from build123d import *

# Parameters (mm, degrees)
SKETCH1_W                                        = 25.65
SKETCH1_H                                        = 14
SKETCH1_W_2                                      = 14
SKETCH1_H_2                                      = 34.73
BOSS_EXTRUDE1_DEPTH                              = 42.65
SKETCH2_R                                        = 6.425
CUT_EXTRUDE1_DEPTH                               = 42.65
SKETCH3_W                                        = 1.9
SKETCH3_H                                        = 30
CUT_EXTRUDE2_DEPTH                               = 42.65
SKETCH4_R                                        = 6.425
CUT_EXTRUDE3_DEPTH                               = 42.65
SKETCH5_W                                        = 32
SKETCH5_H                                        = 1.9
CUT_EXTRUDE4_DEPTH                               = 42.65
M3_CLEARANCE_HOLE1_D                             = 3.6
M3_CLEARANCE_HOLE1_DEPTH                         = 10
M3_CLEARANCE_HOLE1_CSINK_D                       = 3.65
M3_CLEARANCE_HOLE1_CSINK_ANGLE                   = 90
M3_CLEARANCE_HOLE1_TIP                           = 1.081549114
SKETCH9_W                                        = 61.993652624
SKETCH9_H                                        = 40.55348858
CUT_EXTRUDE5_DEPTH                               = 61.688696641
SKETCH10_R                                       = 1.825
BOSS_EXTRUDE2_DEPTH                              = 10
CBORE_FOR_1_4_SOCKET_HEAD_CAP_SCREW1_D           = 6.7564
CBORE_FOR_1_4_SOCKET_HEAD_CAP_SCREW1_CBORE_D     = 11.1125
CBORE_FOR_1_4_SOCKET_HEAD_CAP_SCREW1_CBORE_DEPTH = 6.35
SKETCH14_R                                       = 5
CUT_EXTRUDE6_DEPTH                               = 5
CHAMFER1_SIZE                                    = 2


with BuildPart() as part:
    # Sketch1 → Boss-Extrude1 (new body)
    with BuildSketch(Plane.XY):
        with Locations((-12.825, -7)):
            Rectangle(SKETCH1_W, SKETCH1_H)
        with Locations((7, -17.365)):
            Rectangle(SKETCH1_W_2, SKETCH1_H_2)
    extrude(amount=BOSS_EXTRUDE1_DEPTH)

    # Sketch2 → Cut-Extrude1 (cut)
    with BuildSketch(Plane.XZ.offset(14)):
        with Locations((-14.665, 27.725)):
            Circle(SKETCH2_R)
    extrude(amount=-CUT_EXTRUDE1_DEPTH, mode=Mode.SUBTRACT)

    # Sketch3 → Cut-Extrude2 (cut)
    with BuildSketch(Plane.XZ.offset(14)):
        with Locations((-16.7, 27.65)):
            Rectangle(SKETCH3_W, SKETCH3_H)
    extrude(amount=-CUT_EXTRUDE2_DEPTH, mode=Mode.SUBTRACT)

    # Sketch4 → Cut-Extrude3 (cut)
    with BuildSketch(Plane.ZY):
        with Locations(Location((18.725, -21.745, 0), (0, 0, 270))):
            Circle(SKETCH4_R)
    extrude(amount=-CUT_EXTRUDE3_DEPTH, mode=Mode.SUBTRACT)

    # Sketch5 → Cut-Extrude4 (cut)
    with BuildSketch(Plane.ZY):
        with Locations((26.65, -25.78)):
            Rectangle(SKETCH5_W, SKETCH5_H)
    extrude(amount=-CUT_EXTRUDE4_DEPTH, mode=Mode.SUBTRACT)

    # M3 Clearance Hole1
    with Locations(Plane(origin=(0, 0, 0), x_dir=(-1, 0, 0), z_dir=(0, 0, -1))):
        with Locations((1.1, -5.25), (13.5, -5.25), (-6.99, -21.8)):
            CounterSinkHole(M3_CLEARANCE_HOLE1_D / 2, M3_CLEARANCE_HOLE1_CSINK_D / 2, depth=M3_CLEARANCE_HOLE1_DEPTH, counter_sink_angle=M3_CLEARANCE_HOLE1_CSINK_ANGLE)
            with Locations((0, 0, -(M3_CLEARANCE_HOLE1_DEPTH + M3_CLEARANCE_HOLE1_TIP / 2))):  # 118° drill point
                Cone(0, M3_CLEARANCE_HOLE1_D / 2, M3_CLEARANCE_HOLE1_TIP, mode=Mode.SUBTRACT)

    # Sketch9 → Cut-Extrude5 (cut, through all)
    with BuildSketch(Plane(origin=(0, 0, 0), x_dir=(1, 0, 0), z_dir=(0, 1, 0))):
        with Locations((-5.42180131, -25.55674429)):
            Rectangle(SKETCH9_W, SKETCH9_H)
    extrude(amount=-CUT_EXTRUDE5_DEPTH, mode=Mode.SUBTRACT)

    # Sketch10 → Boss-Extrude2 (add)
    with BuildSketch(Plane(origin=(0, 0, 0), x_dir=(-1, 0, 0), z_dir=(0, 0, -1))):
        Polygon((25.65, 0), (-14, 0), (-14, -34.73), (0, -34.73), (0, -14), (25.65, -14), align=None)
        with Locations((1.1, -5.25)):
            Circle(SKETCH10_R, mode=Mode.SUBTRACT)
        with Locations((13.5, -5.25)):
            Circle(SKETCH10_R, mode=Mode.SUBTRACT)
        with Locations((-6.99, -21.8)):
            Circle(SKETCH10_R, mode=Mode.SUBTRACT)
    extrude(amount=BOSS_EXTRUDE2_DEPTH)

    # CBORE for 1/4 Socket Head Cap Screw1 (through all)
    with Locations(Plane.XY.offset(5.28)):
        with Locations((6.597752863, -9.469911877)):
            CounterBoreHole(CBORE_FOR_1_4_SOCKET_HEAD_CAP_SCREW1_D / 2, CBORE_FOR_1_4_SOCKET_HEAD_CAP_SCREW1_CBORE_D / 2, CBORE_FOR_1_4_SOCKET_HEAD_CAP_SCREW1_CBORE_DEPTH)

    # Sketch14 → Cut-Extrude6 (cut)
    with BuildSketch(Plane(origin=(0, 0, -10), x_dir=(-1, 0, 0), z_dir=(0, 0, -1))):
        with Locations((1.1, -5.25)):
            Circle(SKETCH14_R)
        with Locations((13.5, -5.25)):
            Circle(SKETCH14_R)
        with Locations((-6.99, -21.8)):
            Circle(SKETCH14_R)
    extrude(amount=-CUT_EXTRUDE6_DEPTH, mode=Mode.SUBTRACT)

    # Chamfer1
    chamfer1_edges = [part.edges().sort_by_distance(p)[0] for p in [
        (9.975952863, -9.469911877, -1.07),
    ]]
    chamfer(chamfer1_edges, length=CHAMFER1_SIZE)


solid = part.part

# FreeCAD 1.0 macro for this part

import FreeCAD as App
import Part
import Sketcher

V = App.Vector
Q = App.Units.Quantity


def edges_at(feature, points):
    """Names of the edges that pass closest to the given points."""
    edges = feature.Shape.Edges
    near = lambda p: min(range(len(edges)), key=lambda i: edges[i].distToShape(Part.Vertex(*p))[0])
    return sorted({f"Edge{near(p) + 1}" for p in points})


def add_polygon(sketch, points):
    """Adds a closed chain of lines whose ends are joined by coincident constraints."""
    first, n = sketch.GeometryCount, len(points)
    for a, b in zip(points, points[1:] + points[:1]):
        sketch.addGeometry(Part.LineSegment(App.Vector(*a, 0), App.Vector(*b, 0)), False)
    for i in range(n):
        sketch.addConstraint(Sketcher.Constraint("Coincident", first + i, 2, first + (i + 1) % n, 1))

doc = App.newDocument("Part")
body = doc.addObject("PartDesign::Body", "Body")

# Sketch on XY plane
sketch1 = doc.addObject("Sketcher::SketchObject", "Sketch")
body.addObject(sketch1)
sketch1.AttachmentSupport = (doc.XY_Plane, [""])
sketch1.MapMode = "FlatFace"
add_polygon(sketch1, [(-25.65, 0), (-25.65, -14), (0, -14), (0, -34.73), (14, -34.73), (14, 0)])  # lines 0-5
sketch1.addConstraint(Sketcher.Constraint("Vertical", 0))
sketch1.addConstraint(Sketcher.Constraint("Horizontal", 1))
sketch1.addConstraint(Sketcher.Constraint("Vertical", 2))
sketch1.addConstraint(Sketcher.Constraint("Horizontal", 3))
sketch1.addConstraint(Sketcher.Constraint("Vertical", 4))
sketch1.addConstraint(Sketcher.Constraint("Horizontal", 5))
sketch1.addConstraint(Sketcher.Constraint("PointOnObject", 1, 2, -2))
sketch1.addConstraint(Sketcher.Constraint("PointOnObject", 4, 2, -1))
sketch1.addConstraint(Sketcher.Constraint("Equal", 3, 0))
sketch1.addConstraint(Sketcher.Constraint("DistanceX", 3, 1, 3, 2, Q("14 mm")))
sketch1.addConstraint(Sketcher.Constraint("DistanceX", 1, 1, 1, 2, Q("25.65 mm")))
sketch1.addConstraint(Sketcher.Constraint("DistanceY", 2, 2, 2, 1, Q("20.73 mm")))
pad1 = doc.addObject("PartDesign::Pad", "Pad")
body.addObject(pad1)
pad1.Profile = sketch1
pad1.Length = 42.65

# Sketch on XZ plane
sketch2 = doc.addObject("Sketcher::SketchObject", "Sketch001")
body.addObject(sketch2)
sketch2.AttachmentSupport = (doc.XZ_Plane, [""])
sketch2.MapMode = "FlatFace"
sketch2.AttachmentOffset = App.Placement(V(0, 0, 14), App.Rotation())
sketch2.addGeometry(Part.Circle(V(-14.665, 27.725, 0), V(0, 0, 1), 6.425), False)
sketch2.addConstraint(Sketcher.Constraint("Diameter", 0, Q("12.85 mm")))
sketch2.addConstraint(Sketcher.Constraint("DistanceX", 0, 3, -1, 1, Q("14.665 mm")))
sketch2.addConstraint(Sketcher.Constraint("DistanceY", -1, 1, 0, 3, Q("27.725 mm")))
pocket1 = doc.addObject("PartDesign::Pocket", "Pocket")
body.addObject(pocket1)
pocket1.Profile = sketch2
pocket1.Length = 42.65

# Sketch on XZ plane
sketch3 = doc.addObject("Sketcher::SketchObject", "Sketch002")
body.addObject(sketch3)
sketch3.AttachmentSupport = (doc.XZ_Plane, [""])
sketch3.MapMode = "FlatFace"
sketch3.AttachmentOffset = App.Placement(V(0, 0, 14), App.Rotation())
add_polygon(sketch3, [(-17.65, 42.65), (-17.65, 12.65), (-15.75, 12.65), (-15.75, 42.65)])  # lines 0-3
sketch3.addConstraint(Sketcher.Constraint("Vertical", 0))
sketch3.addConstraint(Sketcher.Constraint("Horizontal", 1))
sketch3.addConstraint(Sketcher.Constraint("Vertical", 2))
sketch3.addConstraint(Sketcher.Constraint("Horizontal", 3))
sketch3.addConstraint(Sketcher.Constraint("DistanceY", 0, 2, 0, 1, Q("30 mm")))
sketch3.addConstraint(Sketcher.Constraint("DistanceX", 1, 1, 1, 2, Q("1.9 mm")))
sketch3.addConstraint(Sketcher.Constraint("DistanceX", 0, 2, -1, 1, Q("17.65 mm")))
sketch3.addConstraint(Sketcher.Constraint("DistanceY", -1, 1, 0, 2, Q("12.65 mm")))
pocket2 = doc.addObject("PartDesign::Pocket", "Pocket001")
body.addObject(pocket2)
pocket2.Profile = sketch3
pocket2.Length = 42.65

# Sketch on YZ plane
sketch4 = doc.addObject("Sketcher::SketchObject", "Sketch003")
body.addObject(sketch4)
sketch4.AttachmentSupport = (doc.YZ_Plane, [""])
sketch4.MapMode = "FlatFace"
sketch4.addGeometry(Part.Circle(V(-21.745, 18.725, 0), V(0, 0, 1), 6.425), False)
sketch4.addConstraint(Sketcher.Constraint("Diameter", 0, Q("12.85 mm")))
sketch4.addConstraint(Sketcher.Constraint("DistanceX", 0, 3, -1, 1, Q("21.745 mm")))
sketch4.addConstraint(Sketcher.Constraint("DistanceY", -1, 1, 0, 3, Q("18.725 mm")))
pocket3 = doc.addObject("PartDesign::Pocket", "Pocket002")
body.addObject(pocket3)
pocket3.Profile = sketch4
pocket3.Length = 42.65
pocket3.Reversed = True

# Sketch on YZ plane
sketch5 = doc.addObject("Sketcher::SketchObject", "Sketch004")
body.addObject(sketch5)
sketch5.AttachmentSupport = (doc.YZ_Plane, [""])
sketch5.MapMode = "FlatFace"
add_polygon(sketch5, [(-24.83, 10.65), (-26.73, 10.65), (-26.73, 42.65), (-24.83, 42.65)])  # lines 0-3
sketch5.addConstraint(Sketcher.Constraint("Horizontal", 0))
sketch5.addConstraint(Sketcher.Constraint("Vertical", 1))
sketch5.addConstraint(Sketcher.Constraint("Horizontal", 2))
sketch5.addConstraint(Sketcher.Constraint("Vertical", 3))
sketch5.addConstraint(Sketcher.Constraint("DistanceY", 1, 1, 1, 2, Q("32 mm")))
sketch5.addConstraint(Sketcher.Constraint("DistanceX", 0, 2, 0, 1, Q("1.9 mm")))
sketch5.addConstraint(Sketcher.Constraint("DistanceX", 0, 2, -1, 1, Q("26.73 mm")))
sketch5.addConstraint(Sketcher.Constraint("DistanceY", -1, 1, 0, 2, Q("10.65 mm")))
pocket4 = doc.addObject("PartDesign::Pocket", "Pocket003")
body.addObject(pocket4)
pocket4.Profile = sketch5
pocket4.Length = 42.65
pocket4.Reversed = True

# Sketch on XY plane
sketch6 = doc.addObject("Sketcher::SketchObject", "Sketch005")
body.addObject(sketch6)
sketch6.AttachmentSupport = (doc.XY_Plane, [""])
sketch6.MapMode = "FlatFace"
sketch6.addGeometry(Part.Circle(V(-1.1, -5.25, 0), V(0, 0, 1), 1.8), False)
sketch6.addGeometry(Part.Circle(V(-13.5, -5.25, 0), V(0, 0, 1), 1.8), False)
sketch6.addGeometry(Part.Circle(V(6.99, -21.8, 0), V(0, 0, 1), 1.8), False)
sketch6.addConstraint(Sketcher.Constraint("Equal", 0, 1))
sketch6.addConstraint(Sketcher.Constraint("Equal", 1, 2))
sketch6.addConstraint(Sketcher.Constraint("Horizontal", 0, 3, 1, 3))
sketch6.addConstraint(Sketcher.Constraint("Diameter", 0, Q("3.6 mm")))
sketch6.addConstraint(Sketcher.Constraint("DistanceX", 0, 3, -1, 1, Q("1.1 mm")))
sketch6.addConstraint(Sketcher.Constraint("DistanceX", 1, 3, -1, 1, Q("13.5 mm")))
sketch6.addConstraint(Sketcher.Constraint("DistanceY", 2, 3, -1, 1, Q("21.8 mm")))
sketch6.addConstraint(Sketcher.Constraint("DistanceY", 0, 3, -1, 1, Q("5.25 mm")))
sketch6.addConstraint(Sketcher.Constraint("DistanceX", -1, 1, 2, 3, Q("6.99 mm")))
doc.recompute()
hole = doc.addObject("PartDesign::Hole", "Hole")
body.addObject(hole)
hole.Profile = sketch6
hole.ThreadType = "None"
hole.Diameter = 3.6
hole.DepthType = "Dimension"
hole.Depth = 10
hole.DrillPoint = "Angled"
hole.DrillPointAngle = 118
hole.HoleCutType = "Countersink"
hole.HoleCutDiameter = 3.65
hole.HoleCutCountersinkAngle = 90
hole.Reversed = True

# Sketch on XZ plane
sketch7 = doc.addObject("Sketcher::SketchObject", "Sketch006")
body.addObject(sketch7)
sketch7.AttachmentSupport = (doc.XZ_Plane, [""])
sketch7.MapMode = "FlatFace"
add_polygon(sketch7, [(-36.418628, 5.28), (-36.418628, 45.833489), (25.575025, 45.833489), (25.575025, 5.28)])  # lines 0-3
sketch7.addConstraint(Sketcher.Constraint("Vertical", 0))
sketch7.addConstraint(Sketcher.Constraint("Horizontal", 1))
sketch7.addConstraint(Sketcher.Constraint("Vertical", 2))
sketch7.addConstraint(Sketcher.Constraint("Horizontal", 3))
sketch7.addConstraint(Sketcher.Constraint("DistanceY", -1, 1, 2, 2, Q("5.28 mm")))
sketch7.addConstraint(Sketcher.Constraint("DistanceY", 0, 1, 0, 2, Q("40.553489 mm")))
sketch7.addConstraint(Sketcher.Constraint("DistanceX", 1, 1, 1, 2, Q("61.993653 mm")))
sketch7.addConstraint(Sketcher.Constraint("DistanceX", 0, 2, -1, 1, Q("36.418628 mm")))
pocket5 = doc.addObject("PartDesign::Pocket", "Pocket004")
body.addObject(pocket5)
pocket5.Profile = sketch7
pocket5.Type = "ThroughAll"
pocket5.Reversed = True

# Sketch on XY plane
sketch8 = doc.addObject("Sketcher::SketchObject", "Sketch007")
body.addObject(sketch8)
sketch8.AttachmentSupport = (doc.XY_Plane, [""])
sketch8.MapMode = "FlatFace"
add_polygon(sketch8, [(-25.65, 0), (14, 0), (14, -34.73), (0, -34.73), (0, -14), (-25.65, -14)])  # lines 0-5
sketch8.addGeometry(Part.Circle(V(6.99, -21.8, 0), V(0, 0, 1), 1.825), False)  # 6
sketch8.addGeometry(Part.Circle(V(-1.1, -5.25, 0), V(0, 0, 1), 1.825), False)  # 7
sketch8.addGeometry(Part.Circle(V(-13.5, -5.25, 0), V(0, 0, 1), 1.825), False)  # 8
sketch8.addConstraint(Sketcher.Constraint("Horizontal", 0))
sketch8.addConstraint(Sketcher.Constraint("Vertical", 1))
sketch8.addConstraint(Sketcher.Constraint("Horizontal", 2))
sketch8.addConstraint(Sketcher.Constraint("Vertical", 3))
sketch8.addConstraint(Sketcher.Constraint("Horizontal", 4))
sketch8.addConstraint(Sketcher.Constraint("Vertical", 5))
sketch8.addConstraint(Sketcher.Constraint("Equal", 6, 7))
sketch8.addConstraint(Sketcher.Constraint("Equal", 7, 8))
sketch8.addConstraint(Sketcher.Constraint("PointOnObject", 0, 2, -1))
sketch8.addConstraint(Sketcher.Constraint("PointOnObject", 2, 2, -2))
sketch8.addConstraint(Sketcher.Constraint("Horizontal", 7, 3, 8, 3))
sketch8.addConstraint(Sketcher.Constraint("Equal", 2, 5))
sketch8.addConstraint(Sketcher.Constraint("Diameter", 6, Q("3.65 mm")))
sketch8.addConstraint(Sketcher.Constraint("DistanceX", 2, 2, 2, 1, Q("14 mm")))
sketch8.addConstraint(Sketcher.Constraint("DistanceX", 0, 1, 0, 2, Q("39.65 mm")))
sketch8.addConstraint(Sketcher.Constraint("DistanceY", 1, 2, 1, 1, Q("34.73 mm")))
sketch8.addConstraint(Sketcher.Constraint("DistanceY", 6, 3, -1, 1, Q("21.8 mm")))
sketch8.addConstraint(Sketcher.Constraint("DistanceX", 7, 3, -1, 1, Q("1.1 mm")))
sketch8.addConstraint(Sketcher.Constraint("DistanceX", 8, 3, -1, 1, Q("13.5 mm")))
sketch8.addConstraint(Sketcher.Constraint("DistanceX", -1, 1, 6, 3, Q("6.99 mm")))
sketch8.addConstraint(Sketcher.Constraint("DistanceY", 7, 3, -1, 1, Q("5.25 mm")))
pad2 = doc.addObject("PartDesign::Pad", "Pad001")
body.addObject(pad2)
pad2.Profile = sketch8
pad2.Length = 10
pad2.Reversed = True

# Sketch on XY plane
sketch9 = doc.addObject("Sketcher::SketchObject", "Sketch008")
body.addObject(sketch9)
sketch9.AttachmentSupport = (doc.XY_Plane, [""])
sketch9.MapMode = "FlatFace"
sketch9.AttachmentOffset = App.Placement(V(0, 0, 5.28), App.Rotation())
sketch9.addGeometry(Part.Circle(V(6.597753, -9.469912, 0), V(0, 0, 1), 3.3782), False)
sketch9.addConstraint(Sketcher.Constraint("Diameter", 0, Q("6.7564 mm")))
sketch9.addConstraint(Sketcher.Constraint("DistanceY", 0, 3, -1, 1, Q("9.469912 mm")))
sketch9.addConstraint(Sketcher.Constraint("DistanceX", -1, 1, 0, 3, Q("6.597753 mm")))
doc.recompute()
hole2 = doc.addObject("PartDesign::Hole", "Hole001")
body.addObject(hole2)
hole2.Profile = sketch9
hole2.ThreadType = "None"
hole2.Diameter = 6.7564
hole2.DepthType = "ThroughAll"
hole2.HoleCutType = "Counterbore"
hole2.HoleCutDiameter = 11.1125
hole2.HoleCutDepth = 6.35

# Sketch on XY plane
sketch10 = doc.addObject("Sketcher::SketchObject", "Sketch009")
body.addObject(sketch10)
sketch10.AttachmentSupport = (doc.XY_Plane, [""])
sketch10.MapMode = "FlatFace"
sketch10.AttachmentOffset = App.Placement(V(0, 0, -10), App.Rotation())
sketch10.addGeometry(Part.Circle(V(-1.1, -5.25, 0), V(0, 0, 1), 5), False)
sketch10.addGeometry(Part.Circle(V(-13.5, -5.25, 0), V(0, 0, 1), 5), False)
sketch10.addGeometry(Part.Circle(V(6.99, -21.8, 0), V(0, 0, 1), 5), False)
sketch10.addConstraint(Sketcher.Constraint("Equal", 0, 1))
sketch10.addConstraint(Sketcher.Constraint("Equal", 1, 2))
sketch10.addConstraint(Sketcher.Constraint("Horizontal", 0, 3, 1, 3))
sketch10.addConstraint(Sketcher.Constraint("Diameter", 0, Q("10 mm")))
sketch10.addConstraint(Sketcher.Constraint("DistanceX", 0, 3, -1, 1, Q("1.1 mm")))
sketch10.addConstraint(Sketcher.Constraint("DistanceX", 1, 3, -1, 1, Q("13.5 mm")))
sketch10.addConstraint(Sketcher.Constraint("DistanceY", 2, 3, -1, 1, Q("21.8 mm")))
sketch10.addConstraint(Sketcher.Constraint("DistanceY", 0, 3, -1, 1, Q("5.25 mm")))
sketch10.addConstraint(Sketcher.Constraint("DistanceX", -1, 1, 2, 3, Q("6.99 mm")))
pocket6 = doc.addObject("PartDesign::Pocket", "Pocket005")
body.addObject(pocket6)
pocket6.Profile = sketch10
pocket6.Length = 5
pocket6.Reversed = True
doc.recompute()

chamfer = doc.addObject("PartDesign::Chamfer", "Chamfer")
body.addObject(chamfer)
chamfer.Base = (pocket6, edges_at(pocket6, [(9.976, -9.47, -1.07)]))
chamfer.Size = 2

doc.recompute()
